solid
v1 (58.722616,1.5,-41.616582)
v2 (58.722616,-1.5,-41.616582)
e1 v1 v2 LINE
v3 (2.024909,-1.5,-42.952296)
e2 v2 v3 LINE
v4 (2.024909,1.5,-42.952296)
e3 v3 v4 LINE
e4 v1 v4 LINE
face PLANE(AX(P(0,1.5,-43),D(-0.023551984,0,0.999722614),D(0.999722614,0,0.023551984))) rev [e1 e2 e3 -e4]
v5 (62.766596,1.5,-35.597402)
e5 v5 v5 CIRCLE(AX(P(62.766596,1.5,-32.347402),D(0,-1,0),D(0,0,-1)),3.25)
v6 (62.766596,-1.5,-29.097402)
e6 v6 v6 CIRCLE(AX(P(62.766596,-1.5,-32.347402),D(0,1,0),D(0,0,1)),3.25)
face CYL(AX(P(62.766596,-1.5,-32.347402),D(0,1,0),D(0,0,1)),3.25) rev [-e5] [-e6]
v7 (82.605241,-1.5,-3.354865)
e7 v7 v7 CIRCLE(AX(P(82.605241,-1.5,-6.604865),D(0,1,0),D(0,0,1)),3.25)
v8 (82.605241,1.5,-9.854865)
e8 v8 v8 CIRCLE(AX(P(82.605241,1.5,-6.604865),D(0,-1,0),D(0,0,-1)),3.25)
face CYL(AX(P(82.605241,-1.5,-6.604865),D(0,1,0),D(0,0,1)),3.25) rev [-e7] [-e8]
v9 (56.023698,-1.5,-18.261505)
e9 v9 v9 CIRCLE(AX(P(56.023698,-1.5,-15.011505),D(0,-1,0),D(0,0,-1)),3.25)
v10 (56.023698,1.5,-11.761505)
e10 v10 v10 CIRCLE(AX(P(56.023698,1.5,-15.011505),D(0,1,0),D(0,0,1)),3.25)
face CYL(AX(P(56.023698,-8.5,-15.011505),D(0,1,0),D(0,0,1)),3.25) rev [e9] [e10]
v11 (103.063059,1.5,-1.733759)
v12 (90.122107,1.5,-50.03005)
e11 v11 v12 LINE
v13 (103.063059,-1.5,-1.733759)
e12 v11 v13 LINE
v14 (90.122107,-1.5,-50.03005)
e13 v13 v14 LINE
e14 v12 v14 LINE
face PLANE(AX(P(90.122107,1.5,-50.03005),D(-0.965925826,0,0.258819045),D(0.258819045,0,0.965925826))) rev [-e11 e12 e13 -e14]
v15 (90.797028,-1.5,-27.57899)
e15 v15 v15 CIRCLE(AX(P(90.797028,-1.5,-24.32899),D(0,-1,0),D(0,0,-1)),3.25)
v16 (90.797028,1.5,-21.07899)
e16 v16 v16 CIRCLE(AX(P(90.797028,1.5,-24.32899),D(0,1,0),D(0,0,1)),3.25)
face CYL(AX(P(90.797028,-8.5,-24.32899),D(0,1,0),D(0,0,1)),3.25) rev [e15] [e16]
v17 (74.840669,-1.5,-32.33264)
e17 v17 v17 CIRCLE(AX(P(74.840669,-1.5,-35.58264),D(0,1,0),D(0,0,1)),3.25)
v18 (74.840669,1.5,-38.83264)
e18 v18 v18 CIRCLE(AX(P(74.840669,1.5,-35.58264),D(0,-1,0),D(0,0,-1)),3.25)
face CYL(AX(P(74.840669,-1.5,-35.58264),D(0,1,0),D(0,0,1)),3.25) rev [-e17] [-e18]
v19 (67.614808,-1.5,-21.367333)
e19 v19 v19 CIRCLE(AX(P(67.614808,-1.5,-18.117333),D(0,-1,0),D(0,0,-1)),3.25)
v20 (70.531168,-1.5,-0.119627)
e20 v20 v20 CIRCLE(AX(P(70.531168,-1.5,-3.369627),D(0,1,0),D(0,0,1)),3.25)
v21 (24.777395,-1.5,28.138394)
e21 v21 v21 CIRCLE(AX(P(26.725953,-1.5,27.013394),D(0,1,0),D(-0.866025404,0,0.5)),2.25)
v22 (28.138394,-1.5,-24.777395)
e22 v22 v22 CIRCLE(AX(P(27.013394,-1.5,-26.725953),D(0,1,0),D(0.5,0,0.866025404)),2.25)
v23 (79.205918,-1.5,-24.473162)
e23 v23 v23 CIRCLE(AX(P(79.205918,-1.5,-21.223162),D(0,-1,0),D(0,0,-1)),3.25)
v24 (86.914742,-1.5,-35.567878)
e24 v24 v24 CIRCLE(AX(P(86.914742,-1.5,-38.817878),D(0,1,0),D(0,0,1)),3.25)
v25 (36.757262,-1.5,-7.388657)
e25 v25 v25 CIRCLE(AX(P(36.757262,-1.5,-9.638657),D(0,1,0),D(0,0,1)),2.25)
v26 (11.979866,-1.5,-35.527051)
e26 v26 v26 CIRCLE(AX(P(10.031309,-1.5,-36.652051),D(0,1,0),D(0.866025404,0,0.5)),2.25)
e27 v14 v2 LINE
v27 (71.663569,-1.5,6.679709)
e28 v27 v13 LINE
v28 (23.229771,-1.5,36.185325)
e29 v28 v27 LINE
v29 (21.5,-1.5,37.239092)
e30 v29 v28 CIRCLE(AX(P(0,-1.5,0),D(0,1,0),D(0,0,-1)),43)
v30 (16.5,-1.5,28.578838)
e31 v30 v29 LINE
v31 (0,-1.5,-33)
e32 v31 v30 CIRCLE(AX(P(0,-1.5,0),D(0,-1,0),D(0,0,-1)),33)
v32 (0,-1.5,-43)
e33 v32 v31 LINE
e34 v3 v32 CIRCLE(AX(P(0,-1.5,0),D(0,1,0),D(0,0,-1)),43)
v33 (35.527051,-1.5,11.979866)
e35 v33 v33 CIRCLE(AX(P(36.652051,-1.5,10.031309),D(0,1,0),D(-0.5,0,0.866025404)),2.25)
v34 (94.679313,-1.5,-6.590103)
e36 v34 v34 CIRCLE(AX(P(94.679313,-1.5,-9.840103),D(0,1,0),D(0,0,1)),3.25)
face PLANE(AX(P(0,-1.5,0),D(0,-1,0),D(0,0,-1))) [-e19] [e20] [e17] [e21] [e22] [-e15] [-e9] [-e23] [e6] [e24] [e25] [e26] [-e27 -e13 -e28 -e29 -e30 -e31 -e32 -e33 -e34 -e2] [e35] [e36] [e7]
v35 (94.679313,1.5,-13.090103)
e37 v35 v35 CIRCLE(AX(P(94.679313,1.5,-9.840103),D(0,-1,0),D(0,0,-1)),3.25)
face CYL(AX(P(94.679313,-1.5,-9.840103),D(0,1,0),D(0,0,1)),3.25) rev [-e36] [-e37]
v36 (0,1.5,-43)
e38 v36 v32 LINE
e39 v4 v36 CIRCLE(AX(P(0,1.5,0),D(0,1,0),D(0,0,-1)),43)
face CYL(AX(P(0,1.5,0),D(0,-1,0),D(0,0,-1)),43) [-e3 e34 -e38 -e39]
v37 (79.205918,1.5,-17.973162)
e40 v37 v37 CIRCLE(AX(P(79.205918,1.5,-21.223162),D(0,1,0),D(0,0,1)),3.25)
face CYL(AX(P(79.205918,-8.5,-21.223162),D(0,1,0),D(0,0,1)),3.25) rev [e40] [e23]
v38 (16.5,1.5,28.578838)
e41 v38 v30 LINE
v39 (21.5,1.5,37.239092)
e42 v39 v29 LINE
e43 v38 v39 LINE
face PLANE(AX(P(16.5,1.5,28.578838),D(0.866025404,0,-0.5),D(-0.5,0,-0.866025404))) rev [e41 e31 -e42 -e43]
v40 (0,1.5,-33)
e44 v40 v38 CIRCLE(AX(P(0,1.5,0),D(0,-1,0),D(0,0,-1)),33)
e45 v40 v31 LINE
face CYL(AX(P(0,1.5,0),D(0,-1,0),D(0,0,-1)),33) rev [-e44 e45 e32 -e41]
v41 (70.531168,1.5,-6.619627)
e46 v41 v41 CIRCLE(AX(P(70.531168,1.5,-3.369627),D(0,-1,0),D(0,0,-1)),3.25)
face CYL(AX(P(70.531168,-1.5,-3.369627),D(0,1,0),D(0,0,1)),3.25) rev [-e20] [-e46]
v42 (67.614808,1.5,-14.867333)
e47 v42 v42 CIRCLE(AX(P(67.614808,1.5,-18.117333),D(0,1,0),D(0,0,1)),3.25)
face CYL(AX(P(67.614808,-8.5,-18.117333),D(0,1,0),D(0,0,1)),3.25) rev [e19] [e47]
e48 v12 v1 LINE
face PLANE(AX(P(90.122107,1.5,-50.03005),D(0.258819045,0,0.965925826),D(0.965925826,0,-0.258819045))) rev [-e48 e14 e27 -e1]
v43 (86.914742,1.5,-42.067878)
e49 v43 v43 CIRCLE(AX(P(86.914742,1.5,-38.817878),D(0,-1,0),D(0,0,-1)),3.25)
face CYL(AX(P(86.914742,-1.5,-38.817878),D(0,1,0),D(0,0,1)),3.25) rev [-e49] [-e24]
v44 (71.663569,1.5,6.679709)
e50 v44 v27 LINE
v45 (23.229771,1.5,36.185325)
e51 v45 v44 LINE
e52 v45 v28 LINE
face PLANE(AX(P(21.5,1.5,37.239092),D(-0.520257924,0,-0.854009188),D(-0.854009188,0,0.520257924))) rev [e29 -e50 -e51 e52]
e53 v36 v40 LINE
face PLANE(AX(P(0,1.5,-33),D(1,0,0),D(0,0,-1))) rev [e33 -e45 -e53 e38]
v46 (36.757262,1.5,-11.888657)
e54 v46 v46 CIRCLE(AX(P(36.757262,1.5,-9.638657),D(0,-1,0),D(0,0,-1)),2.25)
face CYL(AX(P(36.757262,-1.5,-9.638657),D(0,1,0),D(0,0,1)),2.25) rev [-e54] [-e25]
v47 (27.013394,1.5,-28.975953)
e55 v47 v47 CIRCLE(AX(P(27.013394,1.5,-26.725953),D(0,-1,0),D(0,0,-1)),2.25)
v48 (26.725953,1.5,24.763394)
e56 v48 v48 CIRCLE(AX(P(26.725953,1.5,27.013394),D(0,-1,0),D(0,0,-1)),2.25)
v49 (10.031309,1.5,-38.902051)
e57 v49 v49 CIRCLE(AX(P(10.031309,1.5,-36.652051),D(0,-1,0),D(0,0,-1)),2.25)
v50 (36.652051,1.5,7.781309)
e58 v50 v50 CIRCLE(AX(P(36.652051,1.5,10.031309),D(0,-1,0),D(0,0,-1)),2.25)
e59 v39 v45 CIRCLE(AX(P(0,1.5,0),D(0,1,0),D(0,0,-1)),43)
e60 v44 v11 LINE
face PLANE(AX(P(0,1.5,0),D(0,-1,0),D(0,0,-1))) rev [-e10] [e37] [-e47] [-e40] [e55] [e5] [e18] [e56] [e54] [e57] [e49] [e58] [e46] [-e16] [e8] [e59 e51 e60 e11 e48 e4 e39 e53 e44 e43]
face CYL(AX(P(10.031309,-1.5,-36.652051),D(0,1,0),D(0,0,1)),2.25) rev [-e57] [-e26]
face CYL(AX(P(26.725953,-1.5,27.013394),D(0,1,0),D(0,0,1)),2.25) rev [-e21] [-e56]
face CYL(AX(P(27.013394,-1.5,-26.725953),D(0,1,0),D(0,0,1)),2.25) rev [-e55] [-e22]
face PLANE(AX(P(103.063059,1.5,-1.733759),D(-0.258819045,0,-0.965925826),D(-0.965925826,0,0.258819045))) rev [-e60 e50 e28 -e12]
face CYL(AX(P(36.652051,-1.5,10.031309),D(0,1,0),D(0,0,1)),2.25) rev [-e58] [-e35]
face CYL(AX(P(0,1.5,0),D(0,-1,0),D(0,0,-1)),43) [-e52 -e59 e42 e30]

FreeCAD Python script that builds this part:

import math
import FreeCAD as App
import Part
import Sketcher
Q = App.Units.Quantity

doc = App.newDocument("Part")
body = doc.addObject("PartDesign::Body", "Body")

# Sketch on XZ plane
sketch1 = body.newObject("Sketcher::SketchObject", "Sketch")
sketch1.AttachmentSupport = (doc.getObject("XZ_Plane"), [""])
sketch1.MapMode = "FlatFace"
sketch1.addGeometry(Part.LineSegment(App.Vector(0, -43, 0), App.Vector(0, -33, 0)), False)
sketch1.addGeometry(Part.ArcOfCircle(Part.Circle(App.Vector(0, 0, 0), App.Vector(0, 0, 1), 33), math.radians(-90), math.radians(60)), False)
sketch1.addGeometry(Part.LineSegment(App.Vector(16, 29, 0), App.Vector(22, 37, 0)), False)
sketch1.addGeometry(Part.ArcOfCircle(Part.Circle(App.Vector(0, 0, 0), App.Vector(0, 0, 1), 43), math.radians(-90), math.radians(60)), False)
sketch1.addConstraint(Sketcher.Constraint("Coincident", 0, 2, 1, 1))
sketch1.addConstraint(Sketcher.Constraint("Coincident", 1, 2, 2, 1))
sketch1.addConstraint(Sketcher.Constraint("Coincident", 2, 2, 3, 2))
sketch1.addConstraint(Sketcher.Constraint("Coincident", 3, 1, 0, 1))
sketch1.addConstraint(Sketcher.Constraint("Vertical", 0))
sketch1.addConstraint(Sketcher.Constraint("Coincident", 1, 3, -1, 1))
sketch1.addConstraint(Sketcher.Constraint("Coincident", 3, 3, -1, 1))
sketch1.addConstraint(Sketcher.Constraint("PointOnObject", 0, 2, -2))
sketch1.addConstraint(Sketcher.Constraint("Radius", 1, 33.0))
sketch1.addConstraint(Sketcher.Constraint("Radius", 3, 43.0))
sketch1.addConstraint(Sketcher.Constraint("Angle", 2, Q("60 deg")))
sketch1.addConstraint(Sketcher.Constraint("DistanceX", -1, 1, 1, 2, 16.5))
pad1 = body.newObject("PartDesign::Pad", "Pad")
pad1.Profile = sketch1
pad1.Length = 3
pad1.Midplane = True

# Sketch on XZ plane
sketch2 = body.newObject("Sketcher::SketchObject", "Sketch001")
sketch2.AttachmentSupport = (doc.getObject("XZ_Plane"), [""])
sketch2.MapMode = "FlatFace"
sketch2.addGeometry(Part.LineSegment(App.Vector(90, -50, 0), App.Vector(25, -33, 0)), False)
sketch2.addGeometry(Part.LineSegment(App.Vector(25, -33, 0), App.Vector(38, 16, 0)), False)
sketch2.addGeometry(Part.LineSegment(App.Vector(38, 16, 0), App.Vector(103, -2, 0)), False)
sketch2.addGeometry(Part.LineSegment(App.Vector(103, -2, 0), App.Vector(90, -50, 0)), False)
sketch2.addConstraint(Sketcher.Constraint("Coincident", 0, 2, 1, 1))
sketch2.addConstraint(Sketcher.Constraint("Coincident", 1, 2, 2, 1))
sketch2.addConstraint(Sketcher.Constraint("Coincident", 2, 2, 3, 1))
sketch2.addConstraint(Sketcher.Constraint("Coincident", 3, 2, 0, 1))
sketch2.addConstraint(Sketcher.Constraint("Perpendicular", 0, 1))
sketch2.addConstraint(Sketcher.Constraint("Perpendicular", 1, 2))
sketch2.addConstraint(Sketcher.Constraint("Perpendicular", 2, 3))
sketch2.addConstraint(Sketcher.Constraint("Angle", 0, Q("165 deg")))
sketch2.addConstraint(Sketcher.Constraint("Distance", 0, 67.0))
sketch2.addConstraint(Sketcher.Constraint("Distance", 1, 50.0))
sketch2.addConstraint(Sketcher.Constraint("DistanceX", -1, 1, 1, 2, 38.346028))
sketch2.addConstraint(Sketcher.Constraint("DistanceY", 2, 2, -1, 1, 1.733759))
pad2 = body.newObject("PartDesign::Pad", "Pad001")
pad2.Profile = sketch2
pad2.Length = 3
pad2.Midplane = True

# Sketch on XZ plane
sketch3 = body.newObject("Sketcher::SketchObject", "Sketch002")
sketch3.AttachmentSupport = (doc.getObject("XZ_Plane"), [""])
sketch3.MapMode = "FlatFace"
sketch3.addGeometry(Part.LineSegment(App.Vector(59, -42, 0), App.Vector(0, -43, 0)), False)
sketch3.addGeometry(Part.LineSegment(App.Vector(0, -43, 0), App.Vector(27, -33, 0)), False)
sketch3.addGeometry(Part.LineSegment(App.Vector(27, -33, 0), App.Vector(59, -42, 0)), False)
sketch3.addGeometry(Part.LineSegment(App.Vector(72, 7, 0), App.Vector(40, 15, 0)), False)
sketch3.addGeometry(Part.LineSegment(App.Vector(40, 15, 0), App.Vector(22, 37, 0)), False)
sketch3.addGeometry(Part.LineSegment(App.Vector(22, 37, 0), App.Vector(72, 7, 0)), False)
sketch3.addConstraint(Sketcher.Constraint("Coincident", 0, 2, 1, 1))
sketch3.addConstraint(Sketcher.Constraint("Coincident", 1, 2, 2, 1))
sketch3.addConstraint(Sketcher.Constraint("Coincident", 2, 2, 0, 1))
sketch3.addConstraint(Sketcher.Constraint("Coincident", 3, 2, 4, 1))
sketch3.addConstraint(Sketcher.Constraint("Coincident", 4, 2, 5, 1))
sketch3.addConstraint(Sketcher.Constraint("Coincident", 5, 2, 3, 1))
sketch3.addConstraint(Sketcher.Constraint("PointOnObject", 0, 2, -2))
sketch3.addConstraint(Sketcher.Constraint("Parallel", 2, 3))
sketch3.addConstraint(Sketcher.Constraint("Equal", 2, 3))
sketch3.addConstraint(Sketcher.Constraint("Equal", 1, 4))
sketch3.addConstraint(Sketcher.Constraint("Equal", 0, 5))
sketch3.addConstraint(Sketcher.Constraint("Angle", 2, Q("-15 deg")))
sketch3.addConstraint(Sketcher.Constraint("DistanceY", 0, 2, -1, 1, 43.0))
sketch3.addConstraint(Sketcher.Constraint("DistanceX", -1, 1, 4, 2, 21.5))
sketch3.addConstraint(Sketcher.Constraint("Distance", 0, 58.73891))
sketch3.addConstraint(Sketcher.Constraint("DistanceX", -1, 1, 3, 2, 40.264078))
sketch3.addConstraint(Sketcher.Constraint("DistanceX", -1, 1, 5, 2, 71.663569))
sketch3.addConstraint(Sketcher.Constraint("DistanceY", -1, 1, 5, 2, 6.679709))
pad3 = body.newObject("PartDesign::Pad", "Pad002")
pad3.Profile = sketch3
pad3.Length = 3
pad3.Midplane = True

# Sketch on XZ plane
sketch4 = body.newObject("Sketcher::SketchObject", "Sketch003")
sketch4.AttachmentSupport = (doc.getObject("XZ_Plane"), [""])
sketch4.MapMode = "FlatFace"
sketch4.AttachmentOffset = App.Placement(App.Vector(0, 0, 2.5), App.Rotation())
sketch4.addGeometry(Part.Circle(App.Vector(36.8, -9.6, 0), App.Vector(0, 0, 1), 2.2), False)
sketch4.addConstraint(Sketcher.Constraint("Diameter", 0, 4.5))
sketch4.addConstraint(Sketcher.Constraint("DistanceX", -1, 1, 0, 3, 36.757262))
sketch4.addConstraint(Sketcher.Constraint("DistanceY", 0, 3, -1, 1, 9.638657))
pocket1 = body.newObject("PartDesign::Pocket", "Pocket")
pocket1.Profile = sketch4
pocket1.Length = 5
doc.recompute()

polarpattern = body.newObject("PartDesign::PolarPattern", "PolarPattern")
polarpattern.Originals = [pocket1]
polarpattern.Axis = (doc.getObject("Y_Axis"), [""])
polarpattern.Angle = 60
polarpattern.Occurrences = 3
polarpattern.Reversed = True
body.Tip = polarpattern
doc.recompute()

polarpattern2 = body.newObject("PartDesign::PolarPattern", "PolarPattern001")
polarpattern2.Originals = [pocket1]
polarpattern2.Axis = (doc.getObject("Y_Axis"), [""])
polarpattern2.Angle = 60
polarpattern2.Occurrences = 3
body.Tip = polarpattern2

# Sketch on XZ plane
sketch5 = body.newObject("Sketcher::SketchObject", "Sketch004")
sketch5.AttachmentSupport = (doc.getObject("XZ_Plane"), [""])
sketch5.MapMode = "FlatFace"
sketch5.AttachmentOffset = App.Placement(App.Vector(0, 0, 2.5), App.Rotation())
sketch5.addGeometry(Part.Circle(App.Vector(94.7, -9.8, 0), App.Vector(0, 0, 1), 3.2), False)
sketch5.addGeometry(Part.Circle(App.Vector(86.9, -38.8, 0), App.Vector(0, 0, 1), 3.2), False)
sketch5.addConstraint(Sketcher.Constraint("Equal", 0, 1))
sketch5.addConstraint(Sketcher.Constraint("Diameter", 0, 6.5))
sketch5.addConstraint(Sketcher.Constraint("DistanceX", -1, 1, 1, 3, 86.914742))
sketch5.addConstraint(Sketcher.Constraint("DistanceX", 1, 3, 0, 3, 7.764571))
sketch5.addConstraint(Sketcher.Constraint("DistanceY", 0, 3, -1, 1, 9.840103))
sketch5.addConstraint(Sketcher.Constraint("DistanceY", 1, 3, -1, 1, 38.817878))
pocket2 = body.newObject("PartDesign::Pocket", "Pocket001")
pocket2.Profile = sketch5
pocket2.Length = 5
doc.recompute()

datumline = body.newObject("PartDesign::Line", "DatumLine")
datumline.Placement = App.Placement(App.Vector(0, 0, 0), App.Rotation(App.Vector(0, 0, 1), App.Vector(-0.965925826, 0, 0.258819045)))
linearpattern = body.newObject("PartDesign::LinearPattern", "LinearPattern")
linearpattern.Originals = [pocket2]
linearpattern.Direction = (datumline, [""])
linearpattern.Mode = "offset"
linearpattern.Offset = 12.5
linearpattern.Occurrences = 3
body.Tip = linearpattern

# Sketch on XZ plane
sketch6 = body.newObject("Sketcher::SketchObject", "Sketch005")
sketch6.AttachmentSupport = (doc.getObject("XZ_Plane"), [""])
sketch6.MapMode = "FlatFace"
sketch6.AttachmentOffset = App.Placement(App.Vector(0, 0, -1.5), App.Rotation())
sketch6.addGeometry(Part.Circle(App.Vector(90.8, -24.3, 0), App.Vector(0, 0, 1), 3.2), False)
sketch6.addConstraint(Sketcher.Constraint("Diameter", 0, 6.5))
sketch6.addConstraint(Sketcher.Constraint("DistanceY", 0, 3, -1, 1, 24.32899))
sketch6.addConstraint(Sketcher.Constraint("DistanceX", -1, 1, 0, 3, 90.797028))
pocket3 = body.newObject("PartDesign::Pocket", "Pocket002")
pocket3.Profile = sketch6
pocket3.Length = 10
pocket3.Reversed = True
doc.recompute()

datumline2 = body.newObject("PartDesign::Line", "DatumLine001")
datumline2.Placement = App.Placement(App.Vector(0, 0, 0), App.Rotation(App.Vector(0, 0, 1), App.Vector(-0.965925826, 0, 0.258819045)))
linearpattern2 = body.newObject("PartDesign::LinearPattern", "LinearPattern001")
linearpattern2.Originals = [pocket3]
linearpattern2.Direction = (datumline2, [""])
linearpattern2.Mode = "offset"
linearpattern2.Offset = 12
linearpattern2.Occurrences = 4
body.Tip = linearpattern2

doc.recompute()
